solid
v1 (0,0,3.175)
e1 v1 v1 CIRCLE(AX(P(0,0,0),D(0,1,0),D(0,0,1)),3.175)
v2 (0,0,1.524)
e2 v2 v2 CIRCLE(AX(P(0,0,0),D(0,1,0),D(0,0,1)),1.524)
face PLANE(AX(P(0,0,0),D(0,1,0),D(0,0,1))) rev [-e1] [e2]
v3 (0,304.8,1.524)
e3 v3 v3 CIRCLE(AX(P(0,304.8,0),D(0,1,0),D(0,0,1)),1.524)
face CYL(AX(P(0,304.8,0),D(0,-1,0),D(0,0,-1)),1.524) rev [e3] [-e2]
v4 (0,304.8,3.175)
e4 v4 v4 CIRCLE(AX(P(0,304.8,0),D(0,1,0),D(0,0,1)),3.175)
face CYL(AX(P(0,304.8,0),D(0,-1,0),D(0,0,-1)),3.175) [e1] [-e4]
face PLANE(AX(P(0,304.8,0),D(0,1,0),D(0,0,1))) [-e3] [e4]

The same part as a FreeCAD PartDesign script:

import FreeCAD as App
import Part
import Sketcher

V = App.Vector
Q = App.Units.Quantity

doc = App.newDocument("Part")
params = doc.addObject("Spreadsheet::Sheet", "Params")
for row, (alias, value) in enumerate([
    ("sketch1_diameter", "0.25 in"),
    ("sketch1_diameter2", "0.12 in"),
    ("pad1_length", "12 in"),
], start=1):
    params.set(f"A{row}", alias)
    params.set(f"B{row}", "=" + value)
    params.setAlias(f"B{row}", alias)

body = doc.addObject("PartDesign::Body", "Body")

sketch1 = body.newObject("Sketcher::SketchObject", "Sketch")
sketch1.AttachmentSupport = (doc.getObject("XZ_Plane"), [""])
sketch1.MapMode = "FlatFace"
sketch1.addGeometry(Part.Circle(V(0, 0, 0), V(0, 0, 1), 3.2), False)
sketch1.addGeometry(Part.Circle(V(0, 0, 0), V(0, 0, 1), 1.5), False)
sketch1.addConstraint(Sketcher.Constraint("Coincident", 0, 3, -1, 1))
sketch1.addConstraint(Sketcher.Constraint("Coincident", 1, 3, -1, 1))
sketch1.addConstraint(Sketcher.Constraint("Diameter", 0, Q("0.25 in")))
sketch1.addConstraint(Sketcher.Constraint("Diameter", 1, Q("0.12 in")))
sketch1.setExpression("Constraints[2]", "Params.sketch1_diameter")
sketch1.setExpression("Constraints[3]", "Params.sketch1_diameter2")
pad1 = body.newObject("PartDesign::Pad", "Pad")
pad1.Profile = sketch1
pad1.setExpression("Length", "Params.pad1_length")
pad1.Reversed = True

doc.recompute()
